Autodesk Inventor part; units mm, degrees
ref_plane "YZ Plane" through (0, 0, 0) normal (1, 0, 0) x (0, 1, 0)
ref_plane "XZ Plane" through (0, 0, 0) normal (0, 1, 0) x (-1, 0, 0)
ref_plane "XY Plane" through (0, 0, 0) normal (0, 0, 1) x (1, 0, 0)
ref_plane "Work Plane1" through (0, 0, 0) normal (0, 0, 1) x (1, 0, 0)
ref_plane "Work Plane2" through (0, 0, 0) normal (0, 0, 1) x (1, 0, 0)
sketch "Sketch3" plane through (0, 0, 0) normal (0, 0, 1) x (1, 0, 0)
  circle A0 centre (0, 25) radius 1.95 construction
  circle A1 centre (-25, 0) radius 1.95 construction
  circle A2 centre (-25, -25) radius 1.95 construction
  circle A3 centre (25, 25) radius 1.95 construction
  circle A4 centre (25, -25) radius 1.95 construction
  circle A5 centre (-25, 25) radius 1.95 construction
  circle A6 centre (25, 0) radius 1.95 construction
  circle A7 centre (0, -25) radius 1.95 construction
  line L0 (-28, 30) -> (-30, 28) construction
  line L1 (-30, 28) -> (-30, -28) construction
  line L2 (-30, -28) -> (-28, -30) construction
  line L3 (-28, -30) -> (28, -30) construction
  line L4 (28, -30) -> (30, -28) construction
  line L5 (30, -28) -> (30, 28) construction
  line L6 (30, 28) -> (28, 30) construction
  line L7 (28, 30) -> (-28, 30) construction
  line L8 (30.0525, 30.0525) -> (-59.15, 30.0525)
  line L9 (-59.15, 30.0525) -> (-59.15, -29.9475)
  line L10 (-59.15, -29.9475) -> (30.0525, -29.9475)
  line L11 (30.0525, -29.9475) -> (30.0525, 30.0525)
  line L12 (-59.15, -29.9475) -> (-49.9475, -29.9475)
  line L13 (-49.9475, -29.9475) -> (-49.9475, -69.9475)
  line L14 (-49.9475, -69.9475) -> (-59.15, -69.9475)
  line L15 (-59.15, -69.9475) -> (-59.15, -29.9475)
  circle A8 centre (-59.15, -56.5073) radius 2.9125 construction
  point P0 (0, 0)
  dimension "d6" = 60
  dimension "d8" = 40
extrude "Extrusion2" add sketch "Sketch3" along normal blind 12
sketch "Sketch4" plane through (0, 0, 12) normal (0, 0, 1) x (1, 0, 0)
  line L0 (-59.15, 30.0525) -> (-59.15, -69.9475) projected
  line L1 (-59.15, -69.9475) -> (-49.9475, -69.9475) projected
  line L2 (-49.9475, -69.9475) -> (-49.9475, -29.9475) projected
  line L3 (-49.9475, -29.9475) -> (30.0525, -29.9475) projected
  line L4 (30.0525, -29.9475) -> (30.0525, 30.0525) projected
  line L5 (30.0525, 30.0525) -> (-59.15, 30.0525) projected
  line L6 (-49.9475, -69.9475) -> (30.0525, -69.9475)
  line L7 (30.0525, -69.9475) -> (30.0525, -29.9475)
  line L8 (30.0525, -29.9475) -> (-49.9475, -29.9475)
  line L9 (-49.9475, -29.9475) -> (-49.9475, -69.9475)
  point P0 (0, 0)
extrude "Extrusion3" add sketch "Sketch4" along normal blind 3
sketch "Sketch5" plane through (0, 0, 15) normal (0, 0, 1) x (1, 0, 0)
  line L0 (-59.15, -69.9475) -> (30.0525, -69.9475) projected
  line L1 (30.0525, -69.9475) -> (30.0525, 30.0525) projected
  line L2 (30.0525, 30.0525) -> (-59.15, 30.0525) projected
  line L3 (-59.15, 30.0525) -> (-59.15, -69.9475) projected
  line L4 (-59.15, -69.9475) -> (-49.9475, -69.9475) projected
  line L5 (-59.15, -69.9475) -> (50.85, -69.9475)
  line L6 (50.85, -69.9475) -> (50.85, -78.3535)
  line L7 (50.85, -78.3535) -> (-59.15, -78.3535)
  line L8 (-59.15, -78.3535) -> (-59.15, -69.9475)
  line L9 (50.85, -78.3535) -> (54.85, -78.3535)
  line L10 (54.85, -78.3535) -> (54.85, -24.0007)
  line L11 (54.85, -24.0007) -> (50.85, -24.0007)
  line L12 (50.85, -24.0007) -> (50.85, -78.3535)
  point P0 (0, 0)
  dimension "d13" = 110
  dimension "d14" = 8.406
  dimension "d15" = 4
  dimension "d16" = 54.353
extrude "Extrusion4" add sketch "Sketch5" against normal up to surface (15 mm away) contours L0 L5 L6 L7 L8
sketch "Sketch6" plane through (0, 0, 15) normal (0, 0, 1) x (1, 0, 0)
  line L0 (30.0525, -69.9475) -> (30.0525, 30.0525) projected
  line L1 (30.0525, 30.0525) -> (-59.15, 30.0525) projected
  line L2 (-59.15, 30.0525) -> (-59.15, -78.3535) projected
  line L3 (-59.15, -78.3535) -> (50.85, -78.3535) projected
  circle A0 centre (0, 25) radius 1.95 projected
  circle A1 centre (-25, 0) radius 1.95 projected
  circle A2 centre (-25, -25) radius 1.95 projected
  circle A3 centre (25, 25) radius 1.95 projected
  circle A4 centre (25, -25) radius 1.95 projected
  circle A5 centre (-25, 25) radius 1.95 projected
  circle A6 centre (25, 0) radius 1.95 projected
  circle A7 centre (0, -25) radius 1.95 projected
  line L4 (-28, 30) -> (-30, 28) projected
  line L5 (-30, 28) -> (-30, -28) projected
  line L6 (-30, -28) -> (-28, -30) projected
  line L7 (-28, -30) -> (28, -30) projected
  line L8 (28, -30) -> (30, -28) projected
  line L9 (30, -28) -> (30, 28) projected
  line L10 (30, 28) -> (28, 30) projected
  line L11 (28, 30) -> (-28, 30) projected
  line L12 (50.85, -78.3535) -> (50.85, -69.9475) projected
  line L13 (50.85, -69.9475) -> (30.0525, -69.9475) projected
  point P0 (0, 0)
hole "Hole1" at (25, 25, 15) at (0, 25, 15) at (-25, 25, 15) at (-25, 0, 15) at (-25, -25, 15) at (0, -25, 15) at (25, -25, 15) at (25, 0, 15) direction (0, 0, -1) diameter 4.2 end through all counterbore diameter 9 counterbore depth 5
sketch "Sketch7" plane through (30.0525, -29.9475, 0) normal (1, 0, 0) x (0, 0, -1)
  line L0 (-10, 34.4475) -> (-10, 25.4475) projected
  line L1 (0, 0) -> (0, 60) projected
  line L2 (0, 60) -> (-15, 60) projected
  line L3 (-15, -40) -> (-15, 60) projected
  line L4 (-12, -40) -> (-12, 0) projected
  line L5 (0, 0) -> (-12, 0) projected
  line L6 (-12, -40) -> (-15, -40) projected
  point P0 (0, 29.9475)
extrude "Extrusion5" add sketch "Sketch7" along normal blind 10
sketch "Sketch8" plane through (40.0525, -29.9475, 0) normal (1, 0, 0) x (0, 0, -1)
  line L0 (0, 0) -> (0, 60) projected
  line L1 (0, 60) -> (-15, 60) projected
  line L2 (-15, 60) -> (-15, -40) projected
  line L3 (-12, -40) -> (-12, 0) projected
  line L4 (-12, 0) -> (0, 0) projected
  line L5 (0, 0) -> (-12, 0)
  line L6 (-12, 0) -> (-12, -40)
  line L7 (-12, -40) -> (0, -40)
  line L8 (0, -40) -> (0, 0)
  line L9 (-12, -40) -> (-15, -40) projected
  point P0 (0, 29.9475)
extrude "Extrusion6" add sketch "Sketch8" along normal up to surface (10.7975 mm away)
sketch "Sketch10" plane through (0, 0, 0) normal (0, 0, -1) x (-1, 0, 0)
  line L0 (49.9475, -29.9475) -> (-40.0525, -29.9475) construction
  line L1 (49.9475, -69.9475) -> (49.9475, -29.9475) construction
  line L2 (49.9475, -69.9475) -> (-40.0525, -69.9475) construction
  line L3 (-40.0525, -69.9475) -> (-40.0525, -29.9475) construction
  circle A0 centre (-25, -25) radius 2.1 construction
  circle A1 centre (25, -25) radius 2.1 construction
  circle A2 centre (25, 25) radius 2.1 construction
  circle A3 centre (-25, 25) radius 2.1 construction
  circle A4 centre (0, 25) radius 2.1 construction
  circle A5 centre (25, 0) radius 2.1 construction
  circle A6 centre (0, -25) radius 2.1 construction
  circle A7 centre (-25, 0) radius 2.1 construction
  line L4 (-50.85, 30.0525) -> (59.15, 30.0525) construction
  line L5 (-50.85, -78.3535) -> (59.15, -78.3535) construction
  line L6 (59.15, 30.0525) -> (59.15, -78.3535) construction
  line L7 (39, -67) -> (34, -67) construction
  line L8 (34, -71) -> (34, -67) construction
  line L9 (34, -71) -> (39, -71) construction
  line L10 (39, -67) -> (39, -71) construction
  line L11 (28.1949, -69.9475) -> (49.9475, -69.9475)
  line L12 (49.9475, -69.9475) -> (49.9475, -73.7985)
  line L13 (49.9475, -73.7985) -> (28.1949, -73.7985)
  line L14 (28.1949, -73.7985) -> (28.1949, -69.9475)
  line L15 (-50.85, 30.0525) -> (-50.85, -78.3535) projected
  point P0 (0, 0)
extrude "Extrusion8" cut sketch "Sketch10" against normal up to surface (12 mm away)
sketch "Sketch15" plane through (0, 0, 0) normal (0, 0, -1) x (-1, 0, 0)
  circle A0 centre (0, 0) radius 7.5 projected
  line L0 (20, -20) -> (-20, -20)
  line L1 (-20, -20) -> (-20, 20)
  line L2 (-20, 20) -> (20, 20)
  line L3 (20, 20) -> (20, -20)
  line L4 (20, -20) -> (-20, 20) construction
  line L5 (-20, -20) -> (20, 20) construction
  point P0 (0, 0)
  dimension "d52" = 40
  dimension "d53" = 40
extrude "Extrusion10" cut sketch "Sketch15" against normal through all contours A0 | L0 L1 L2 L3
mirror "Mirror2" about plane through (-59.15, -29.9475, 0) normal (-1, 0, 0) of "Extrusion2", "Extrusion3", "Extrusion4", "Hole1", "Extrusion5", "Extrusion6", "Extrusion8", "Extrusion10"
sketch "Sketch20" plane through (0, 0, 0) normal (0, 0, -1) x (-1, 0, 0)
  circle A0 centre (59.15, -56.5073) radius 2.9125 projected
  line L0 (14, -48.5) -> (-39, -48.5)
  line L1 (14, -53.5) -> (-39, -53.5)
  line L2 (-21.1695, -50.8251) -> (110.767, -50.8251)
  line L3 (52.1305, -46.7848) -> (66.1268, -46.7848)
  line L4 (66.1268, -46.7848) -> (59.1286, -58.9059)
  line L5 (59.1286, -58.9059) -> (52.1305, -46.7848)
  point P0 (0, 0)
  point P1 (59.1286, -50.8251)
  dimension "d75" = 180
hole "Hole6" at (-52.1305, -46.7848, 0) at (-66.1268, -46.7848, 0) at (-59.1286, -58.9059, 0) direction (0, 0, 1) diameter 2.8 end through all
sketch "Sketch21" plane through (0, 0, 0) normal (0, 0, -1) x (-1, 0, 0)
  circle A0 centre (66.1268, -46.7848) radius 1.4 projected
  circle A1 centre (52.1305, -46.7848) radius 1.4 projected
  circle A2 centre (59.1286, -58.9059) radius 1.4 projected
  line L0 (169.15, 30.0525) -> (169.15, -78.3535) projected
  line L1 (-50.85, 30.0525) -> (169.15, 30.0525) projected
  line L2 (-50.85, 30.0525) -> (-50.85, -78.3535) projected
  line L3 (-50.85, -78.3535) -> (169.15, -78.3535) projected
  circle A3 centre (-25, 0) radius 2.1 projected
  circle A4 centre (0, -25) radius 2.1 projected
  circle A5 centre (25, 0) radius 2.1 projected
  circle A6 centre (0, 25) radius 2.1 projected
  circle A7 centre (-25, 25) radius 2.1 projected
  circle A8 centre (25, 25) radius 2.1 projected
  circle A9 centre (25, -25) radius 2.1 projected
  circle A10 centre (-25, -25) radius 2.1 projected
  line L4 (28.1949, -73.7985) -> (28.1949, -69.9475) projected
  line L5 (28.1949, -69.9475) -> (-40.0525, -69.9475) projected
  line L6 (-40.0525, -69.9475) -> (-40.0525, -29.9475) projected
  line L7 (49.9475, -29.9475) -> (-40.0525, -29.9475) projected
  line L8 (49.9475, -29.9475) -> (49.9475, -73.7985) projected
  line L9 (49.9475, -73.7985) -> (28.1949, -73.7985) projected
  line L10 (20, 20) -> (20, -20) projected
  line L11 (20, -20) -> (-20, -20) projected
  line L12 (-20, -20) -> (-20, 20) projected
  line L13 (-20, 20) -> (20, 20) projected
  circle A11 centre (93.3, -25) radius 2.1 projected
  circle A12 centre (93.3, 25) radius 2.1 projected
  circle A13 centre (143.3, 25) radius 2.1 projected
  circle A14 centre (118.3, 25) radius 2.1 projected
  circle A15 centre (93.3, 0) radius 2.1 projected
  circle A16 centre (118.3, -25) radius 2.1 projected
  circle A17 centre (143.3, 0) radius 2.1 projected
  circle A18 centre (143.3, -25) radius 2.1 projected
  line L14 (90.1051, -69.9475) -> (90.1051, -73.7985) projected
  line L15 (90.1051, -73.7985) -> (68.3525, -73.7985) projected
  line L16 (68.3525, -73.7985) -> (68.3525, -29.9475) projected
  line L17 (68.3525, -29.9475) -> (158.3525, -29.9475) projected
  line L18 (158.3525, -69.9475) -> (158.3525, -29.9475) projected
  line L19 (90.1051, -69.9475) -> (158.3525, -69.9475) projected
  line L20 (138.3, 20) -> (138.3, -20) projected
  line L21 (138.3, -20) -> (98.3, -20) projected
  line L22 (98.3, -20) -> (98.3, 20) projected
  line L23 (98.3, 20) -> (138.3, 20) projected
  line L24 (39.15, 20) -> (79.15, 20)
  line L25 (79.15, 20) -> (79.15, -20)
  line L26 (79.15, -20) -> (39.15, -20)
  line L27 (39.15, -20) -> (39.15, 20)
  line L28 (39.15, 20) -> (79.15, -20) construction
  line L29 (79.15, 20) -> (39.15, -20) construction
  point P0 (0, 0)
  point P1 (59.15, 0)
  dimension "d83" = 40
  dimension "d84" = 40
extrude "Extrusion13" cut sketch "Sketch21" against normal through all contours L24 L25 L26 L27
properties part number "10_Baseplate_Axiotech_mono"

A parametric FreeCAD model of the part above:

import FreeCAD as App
import Part
import Sketcher
from FreeCAD import Vector
Q = App.Units.Quantity

doc = App.newDocument("Part")
body = doc.addObject("PartDesign::Body", "Body")

sketch1 = body.newObject("Sketcher::SketchObject", "Sketch")
sketch1.AttachmentSupport = (doc.getObject("XY_Plane"), [""])
sketch1.MapMode = "FlatFace"
sketch1.addGeometry(Part.LineSegment(Vector(30, -30, 0), Vector(30, 30, 0)), False)
sketch1.addGeometry(Part.LineSegment(Vector(30, 30, 0), Vector(-59, 30, 0)), False)
sketch1.addGeometry(Part.LineSegment(Vector(-59, 30, 0), Vector(-59, -70, 0)), False)
sketch1.addGeometry(Part.LineSegment(Vector(-59, -70, 0), Vector(-50, -70, 0)), False)
sketch1.addGeometry(Part.LineSegment(Vector(-50, -70, 0), Vector(-50, -30, 0)), False)
sketch1.addGeometry(Part.LineSegment(Vector(-50, -30, 0), Vector(30, -30, 0)), False)
sketch1.addConstraint(Sketcher.Constraint("Coincident", 0, 2, 1, 1))
sketch1.addConstraint(Sketcher.Constraint("Coincident", 1, 2, 2, 1))
sketch1.addConstraint(Sketcher.Constraint("Coincident", 2, 2, 3, 1))
sketch1.addConstraint(Sketcher.Constraint("Coincident", 3, 2, 4, 1))
sketch1.addConstraint(Sketcher.Constraint("Coincident", 4, 2, 5, 1))
sketch1.addConstraint(Sketcher.Constraint("Coincident", 5, 2, 0, 1))
sketch1.addConstraint(Sketcher.Constraint("Vertical", 0))
sketch1.addConstraint(Sketcher.Constraint("Horizontal", 1))
sketch1.addConstraint(Sketcher.Constraint("Vertical", 2))
sketch1.addConstraint(Sketcher.Constraint("Horizontal", 3))
sketch1.addConstraint(Sketcher.Constraint("Vertical", 4))
sketch1.addConstraint(Sketcher.Constraint("Horizontal", 5))
sketch1.addConstraint(Sketcher.Constraint("DistanceY", 0, 1, 0, 2, Q("60 mm")))
sketch1.addConstraint(Sketcher.Constraint("DistanceY", 4, 1, 4, 2, Q("40 mm")))
sketch1.addConstraint(Sketcher.Constraint("DistanceX", 5, 1, 5, 2, Q("80 mm")))
sketch1.addConstraint(Sketcher.Constraint("DistanceX", 1, 2, -1, 1, Q("59.15 mm")))
sketch1.addConstraint(Sketcher.Constraint("DistanceX", 1, 2, 1, 1, Q("89.2025 mm")))
sketch1.addConstraint(Sketcher.Constraint("DistanceY", -1, 1, 0, 2, Q("30.0525 mm")))
pad1 = body.newObject("PartDesign::Pad", "Pad")
pad1.Profile = sketch1
pad1.Length = 12

sketch2 = body.newObject("Sketcher::SketchObject", "Sketch001")
sketch2.AttachmentSupport = (doc.getObject("XY_Plane"), [""])
sketch2.MapMode = "FlatFace"
sketch2.AttachmentOffset = App.Placement(Vector(0, 0, 12), App.Rotation())
sketch2.addGeometry(Part.LineSegment(Vector(30, 30, 0), Vector(-59, 30, 0)), False)
sketch2.addGeometry(Part.LineSegment(Vector(-59, 30, 0), Vector(-59, -70, 0)), False)
sketch2.addGeometry(Part.LineSegment(Vector(-59, -70, 0), Vector(30, -70, 0)), False)
sketch2.addGeometry(Part.LineSegment(Vector(30, -70, 0), Vector(30, 30, 0)), False)
sketch2.addConstraint(Sketcher.Constraint("Coincident", 0, 2, 1, 1))
sketch2.addConstraint(Sketcher.Constraint("Coincident", 1, 2, 2, 1))
sketch2.addConstraint(Sketcher.Constraint("Coincident", 2, 2, 3, 1))
sketch2.addConstraint(Sketcher.Constraint("Coincident", 3, 2, 0, 1))
sketch2.addConstraint(Sketcher.Constraint("Horizontal", 0))
sketch2.addConstraint(Sketcher.Constraint("Vertical", 1))
sketch2.addConstraint(Sketcher.Constraint("Horizontal", 2))
sketch2.addConstraint(Sketcher.Constraint("Vertical", 3))
sketch2.addConstraint(Sketcher.Constraint("DistanceY", 1, 2, 1, 1, Q("100 mm")))
sketch2.addConstraint(Sketcher.Constraint("DistanceX", 0, 2, -1, 1, Q("59.15 mm")))
sketch2.addConstraint(Sketcher.Constraint("DistanceX", 0, 2, 0, 1, Q("89.2025 mm")))
sketch2.addConstraint(Sketcher.Constraint("DistanceY", -1, 1, 0, 2, Q("30.0525 mm")))
pad2 = body.newObject("PartDesign::Pad", "Pad001")
pad2.Profile = sketch2
pad2.Length = 3

sketch3 = body.newObject("Sketcher::SketchObject", "Sketch002")
sketch3.AttachmentSupport = (doc.getObject("XY_Plane"), [""])
sketch3.MapMode = "FlatFace"
sketch3.AttachmentOffset = App.Placement(Vector(0, 0, 15), App.Rotation())
sketch3.addGeometry(Part.LineSegment(Vector(51, -70, 0), Vector(-59, -70, 0)), False)
sketch3.addGeometry(Part.LineSegment(Vector(-59, -70, 0), Vector(-59, -78, 0)), False)
sketch3.addGeometry(Part.LineSegment(Vector(-59, -78, 0), Vector(51, -78, 0)), False)
sketch3.addGeometry(Part.LineSegment(Vector(51, -78, 0), Vector(51, -70, 0)), False)
sketch3.addConstraint(Sketcher.Constraint("Coincident", 0, 2, 1, 1))
sketch3.addConstraint(Sketcher.Constraint("Coincident", 1, 2, 2, 1))
sketch3.addConstraint(Sketcher.Constraint("Coincident", 2, 2, 3, 1))
sketch3.addConstraint(Sketcher.Constraint("Coincident", 3, 2, 0, 1))
sketch3.addConstraint(Sketcher.Constraint("Horizontal", 0))
sketch3.addConstraint(Sketcher.Constraint("Vertical", 1))
sketch3.addConstraint(Sketcher.Constraint("Horizontal", 2))
sketch3.addConstraint(Sketcher.Constraint("Vertical", 3))
sketch3.addConstraint(Sketcher.Constraint("DistanceX", 0, 2, 0, 1, Q("110 mm")))
sketch3.addConstraint(Sketcher.Constraint("DistanceY", 1, 2, 1, 1, Q("8.406 mm")))
sketch3.addConstraint(Sketcher.Constraint("DistanceX", 0, 2, -1, 1, Q("59.15 mm")))
sketch3.addConstraint(Sketcher.Constraint("DistanceY", 0, 2, -1, 1, Q("69.9475 mm")))
pad3 = body.newObject("PartDesign::Pad", "Pad002")
pad3.Profile = sketch3
pad3.Length = 15
pad3.Reversed = True

sketch4 = body.newObject("Sketcher::SketchObject", "Sketch003")
sketch4.AttachmentSupport = (doc.getObject("XY_Plane"), [""])
sketch4.MapMode = "FlatFace"
sketch4.AttachmentOffset = App.Placement(Vector(0, 0, 15), App.Rotation())
sketch4.addGeometry(Part.Circle(Vector(25, 25, 0), Vector(0, 0, 1), 2.1), False)
sketch4.addGeometry(Part.Circle(Vector(0, 25, 0), Vector(0, 0, 1), 2.1), False)
sketch4.addGeometry(Part.Circle(Vector(-25, 25, 0), Vector(0, 0, 1), 2.1), False)
sketch4.addGeometry(Part.Circle(Vector(-25, 0, 0), Vector(0, 0, 1), 2.1), False)
sketch4.addGeometry(Part.Circle(Vector(-25, -25, 0), Vector(0, 0, 1), 2.1), False)
sketch4.addGeometry(Part.Circle(Vector(0, -25, 0), Vector(0, 0, 1), 2.1), False)
sketch4.addGeometry(Part.Circle(Vector(25, -25, 0), Vector(0, 0, 1), 2.1), False)
sketch4.addGeometry(Part.Circle(Vector(25, 0, 0), Vector(0, 0, 1), 2.1), False)
sketch4.addConstraint(Sketcher.Constraint("Equal", 0, 1))
sketch4.addConstraint(Sketcher.Constraint("Equal", 1, 2))
sketch4.addConstraint(Sketcher.Constraint("Equal", 2, 3))
sketch4.addConstraint(Sketcher.Constraint("Equal", 3, 4))
sketch4.addConstraint(Sketcher.Constraint("Equal", 4, 5))
sketch4.addConstraint(Sketcher.Constraint("Equal", 5, 6))
sketch4.addConstraint(Sketcher.Constraint("Equal", 6, 7))
sketch4.addConstraint(Sketcher.Constraint("Symmetric", 0, 3, 4, 3, -1, 1))
sketch4.addConstraint(Sketcher.Constraint("Symmetric", 1, 3, 5, 3, -1, 1))
sketch4.addConstraint(Sketcher.Constraint("Symmetric", 2, 3, 6, 3, -1, 1))
sketch4.addConstraint(Sketcher.Constraint("Symmetric", 3, 3, 7, 3, -1, 1))
sketch4.addConstraint(Sketcher.Constraint("Symmetric", 0, 3, 2, 3, -2))
sketch4.addConstraint(Sketcher.Constraint("PointOnObject", 1, 3, -2))
sketch4.addConstraint(Sketcher.Constraint("PointOnObject", 3, 3, -1))
sketch4.addConstraint(Sketcher.Constraint("Horizontal", 0, 3, 1, 3))
sketch4.addConstraint(Sketcher.Constraint("Vertical", 2, 3, 3, 3))
sketch4.addConstraint(Sketcher.Constraint("Diameter", 0, Q("4.2 mm")))
sketch4.addConstraint(Sketcher.Constraint("DistanceX", -1, 1, 0, 3, Q("25 mm")))
sketch4.addConstraint(Sketcher.Constraint("DistanceY", -1, 1, 0, 3, Q("25 mm")))
doc.recompute()
hole = body.newObject("PartDesign::Hole", "Hole")
hole.Profile = sketch4
hole.ThreadType = "None"
hole.Diameter = 4.2
hole.DepthType = "ThroughAll"
hole.HoleCutType = "Counterbore"
hole.HoleCutDiameter = 9
hole.HoleCutDepth = 5

sketch5 = body.newObject("Sketcher::SketchObject", "Sketch004")
sketch5.AttachmentSupport = (doc.getObject("YZ_Plane"), [""])
sketch5.MapMode = "FlatFace"
sketch5.AttachmentOffset = App.Placement(Vector(0, 0, 30.0525), App.Rotation())
sketch5.addGeometry(Part.LineSegment(Vector(-29.9, 12, 0), Vector(-29.9, 0, 0)), False)
sketch5.addGeometry(Part.LineSegment(Vector(-29.9, 0, 0), Vector(30.1, 0, 0)), False)
sketch5.addGeometry(Part.LineSegment(Vector(30.1, 0, 0), Vector(30.1, 15, 0)), False)
sketch5.addGeometry(Part.LineSegment(Vector(30.1, 15, 0), Vector(-69.9, 15, 0)), False)
sketch5.addGeometry(Part.LineSegment(Vector(-69.9, 15, 0), Vector(-69.9, 12, 0)), False)
sketch5.addGeometry(Part.LineSegment(Vector(-69.9, 12, 0), Vector(-29.9, 12, 0)), False)
sketch5.addConstraint(Sketcher.Constraint("Coincident", 0, 2, 1, 1))
sketch5.addConstraint(Sketcher.Constraint("Coincident", 1, 2, 2, 1))
sketch5.addConstraint(Sketcher.Constraint("Coincident", 2, 2, 3, 1))
sketch5.addConstraint(Sketcher.Constraint("Coincident", 3, 2, 4, 1))
sketch5.addConstraint(Sketcher.Constraint("Coincident", 4, 2, 5, 1))
sketch5.addConstraint(Sketcher.Constraint("Coincident", 5, 2, 0, 1))
sketch5.addConstraint(Sketcher.Constraint("Vertical", 0))
sketch5.addConstraint(Sketcher.Constraint("Horizontal", 1))
sketch5.addConstraint(Sketcher.Constraint("Vertical", 2))
sketch5.addConstraint(Sketcher.Constraint("Horizontal", 3))
sketch5.addConstraint(Sketcher.Constraint("Vertical", 4))
sketch5.addConstraint(Sketcher.Constraint("Horizontal", 5))
sketch5.addConstraint(Sketcher.Constraint("PointOnObject", 0, 2, -1))
sketch5.addConstraint(Sketcher.Constraint("DistanceX", 1, 1, 1, 2, Q("60 mm")))
sketch5.addConstraint(Sketcher.Constraint("DistanceX", 3, 2, 3, 1, Q("100 mm")))
sketch5.addConstraint(Sketcher.Constraint("DistanceY", 0, 2, 0, 1, Q("12 mm")))
sketch5.addConstraint(Sketcher.Constraint("DistanceY", 2, 1, 2, 2, Q("15 mm")))
sketch5.addConstraint(Sketcher.Constraint("DistanceX", 0, 2, -1, 1, Q("29.9475 mm")))
pad4 = body.newObject("PartDesign::Pad", "Pad003")
pad4.Profile = sketch5
pad4.Length = 10

sketch6 = body.newObject("Sketcher::SketchObject", "Sketch005")
sketch6.AttachmentSupport = (doc.getObject("YZ_Plane"), [""])
sketch6.MapMode = "FlatFace"
sketch6.AttachmentOffset = App.Placement(Vector(0, 0, 40.0525), App.Rotation())
sketch6.addGeometry(Part.LineSegment(Vector(-70, 15, 0), Vector(-70, 0, 0)), False)
sketch6.addGeometry(Part.LineSegment(Vector(-70, 0, 0), Vector(30, 0, 0)), False)
sketch6.addGeometry(Part.LineSegment(Vector(30, 0, 0), Vector(30, 15, 0)), False)
sketch6.addGeometry(Part.LineSegment(Vector(30, 15, 0), Vector(-70, 15, 0)), False)
sketch6.addConstraint(Sketcher.Constraint("Coincident", 0, 2, 1, 1))
sketch6.addConstraint(Sketcher.Constraint("Coincident", 1, 2, 2, 1))
sketch6.addConstraint(Sketcher.Constraint("Coincident", 2, 2, 3, 1))
sketch6.addConstraint(Sketcher.Constraint("Coincident", 3, 2, 0, 1))
sketch6.addConstraint(Sketcher.Constraint("Vertical", 0))
sketch6.addConstraint(Sketcher.Constraint("Horizontal", 1))
sketch6.addConstraint(Sketcher.Constraint("Vertical", 2))
sketch6.addConstraint(Sketcher.Constraint("Horizontal", 3))
sketch6.addConstraint(Sketcher.Constraint("PointOnObject", 0, 2, -1))
sketch6.addConstraint(Sketcher.Constraint("DistanceX", 1, 1, 1, 2, Q("100 mm")))
sketch6.addConstraint(Sketcher.Constraint("DistanceY", 0, 2, 0, 1, Q("15 mm")))
sketch6.addConstraint(Sketcher.Constraint("DistanceX", 0, 2, -1, 1, Q("69.9475 mm")))
pad5 = body.newObject("PartDesign::Pad", "Pad004")
pad5.Profile = sketch6
pad5.Length = 10.7975

sketch7 = body.newObject("Sketcher::SketchObject", "Sketch006")
sketch7.AttachmentSupport = (doc.getObject("XY_Plane"), [""])
sketch7.MapMode = "FlatFace"
sketch7.addGeometry(Part.LineSegment(Vector(-49.9, -69.9, 0), Vector(-28.2, -69.9, 0)), False)
sketch7.addGeometry(Part.LineSegment(Vector(-28.2, -69.9, 0), Vector(-28.2, -73.8, 0)), False)
sketch7.addGeometry(Part.LineSegment(Vector(-28.2, -73.8, 0), Vector(-49.9, -73.8, 0)), False)
sketch7.addGeometry(Part.LineSegment(Vector(-49.9, -73.8, 0), Vector(-49.9, -69.9, 0)), False)
sketch7.addConstraint(Sketcher.Constraint("Coincident", 0, 2, 1, 1))
sketch7.addConstraint(Sketcher.Constraint("Coincident", 1, 2, 2, 1))
sketch7.addConstraint(Sketcher.Constraint("Coincident", 2, 2, 3, 1))
sketch7.addConstraint(Sketcher.Constraint("Coincident", 3, 2, 0, 1))
sketch7.addConstraint(Sketcher.Constraint("Horizontal", 0))
sketch7.addConstraint(Sketcher.Constraint("Vertical", 1))
sketch7.addConstraint(Sketcher.Constraint("Horizontal", 2))
sketch7.addConstraint(Sketcher.Constraint("Vertical", 3))
sketch7.addConstraint(Sketcher.Constraint("DistanceY", 1, 2, 1, 1, Q("3.851 mm")))
sketch7.addConstraint(Sketcher.Constraint("DistanceX", 0, 1, 0, 2, Q("21.7526 mm")))
sketch7.addConstraint(Sketcher.Constraint("DistanceX", 0, 2, -1, 1, Q("28.195 mm")))
sketch7.addConstraint(Sketcher.Constraint("DistanceY", 0, 2, -1, 1, Q("69.9475 mm")))
pocket1 = body.newObject("PartDesign::Pocket", "Pocket")
pocket1.Profile = sketch7
pocket1.Length = 12
pocket1.Reversed = True

sketch8 = body.newObject("Sketcher::SketchObject", "Sketch007")
sketch8.AttachmentSupport = (doc.getObject("XY_Plane"), [""])
sketch8.MapMode = "FlatFace"
sketch8.addGeometry(Part.LineSegment(Vector(20, -20, 0), Vector(-20, -20, 0)), False)
sketch8.addGeometry(Part.LineSegment(Vector(-20, -20, 0), Vector(-20, 20, 0)), False)
sketch8.addGeometry(Part.LineSegment(Vector(-20, 20, 0), Vector(20, 20, 0)), False)
sketch8.addGeometry(Part.LineSegment(Vector(20, 20, 0), Vector(20, -20, 0)), False)
sketch8.addConstraint(Sketcher.Constraint("Coincident", 0, 2, 1, 1))
sketch8.addConstraint(Sketcher.Constraint("Coincident", 1, 2, 2, 1))
sketch8.addConstraint(Sketcher.Constraint("Coincident", 2, 2, 3, 1))
sketch8.addConstraint(Sketcher.Constraint("Coincident", 3, 2, 0, 1))
sketch8.addConstraint(Sketcher.Constraint("Horizontal", 0))
sketch8.addConstraint(Sketcher.Constraint("Vertical", 1))
sketch8.addConstraint(Sketcher.Constraint("Horizontal", 2))
sketch8.addConstraint(Sketcher.Constraint("Vertical", 3))
sketch8.addConstraint(Sketcher.Constraint("Symmetric", 0, 2, 2, 2, -1, 1))
sketch8.addConstraint(Sketcher.Constraint("Equal", 2, 1))
sketch8.addConstraint(Sketcher.Constraint("DistanceX", 0, 2, 0, 1, Q("40 mm")))
pocket2 = body.newObject("PartDesign::Pocket", "Pocket001")
pocket2.Profile = sketch8
pocket2.Type = "ThroughAll"
pocket2.Reversed = True
doc.recompute()

datumplane = body.newObject("PartDesign::Plane", "DatumPlane")
datumplane.AttachmentSupport = (doc.getObject("YZ_Plane"), [""])
datumplane.MapMode = "FlatFace"
datumplane.AttachmentOffset = App.Placement(Vector(0, 0, -59.15), App.Rotation())
mirrored = body.newObject("PartDesign::Mirrored", "Mirrored")
mirrored.Originals = [pad1, pad2, pad3, hole, pad4, pad5, pocket1, pocket2]
mirrored.MirrorPlane = (datumplane, [""])
body.Tip = mirrored

sketch9 = body.newObject("Sketcher::SketchObject", "Sketch008")
sketch9.AttachmentSupport = (doc.getObject("XY_Plane"), [""])
sketch9.MapMode = "FlatFace"
sketch9.addGeometry(Part.Circle(Vector(-52.1, -46.8, 0), Vector(0, 0, 1), 1.4), False)
sketch9.addGeometry(Part.Circle(Vector(-66.1, -46.8, 0), Vector(0, 0, 1), 1.4), False)
sketch9.addGeometry(Part.Circle(Vector(-59.1, -58.9, 0), Vector(0, 0, 1), 1.4), False)
sketch9.addConstraint(Sketcher.Constraint("Equal", 0, 1))
sketch9.addConstraint(Sketcher.Constraint("Equal", 1, 2))
sketch9.addConstraint(Sketcher.Constraint("Horizontal", 0, 3, 1, 3))
sketch9.addConstraint(Sketcher.Constraint("Diameter", 0, Q("2.8 mm")))
sketch9.addConstraint(Sketcher.Constraint("DistanceY", 2, 3, -1, 1, Q("58.906 mm")))
sketch9.addConstraint(Sketcher.Constraint("DistanceX", 2, 3, 0, 3, Q("6.998 mm")))
sketch9.addConstraint(Sketcher.Constraint("DistanceY", 2, 3, 0, 3, Q("12.121 mm")))
sketch9.addConstraint(Sketcher.Constraint("DistanceX", 0, 3, -1, 1, Q("52.1305 mm")))
sketch9.addConstraint(Sketcher.Constraint("DistanceX", 1, 3, -1, 1, Q("66.1268 mm")))
doc.recompute()
hole2 = body.newObject("PartDesign::Hole", "Hole001")
hole2.Profile = sketch9
hole2.ThreadType = "None"
hole2.Diameter = 2.8
hole2.DepthType = "ThroughAll"
hole2.Reversed = True

sketch10 = body.newObject("Sketcher::SketchObject", "Sketch009")
sketch10.AttachmentSupport = (doc.getObject("XY_Plane"), [""])
sketch10.MapMode = "FlatFace"
sketch10.addGeometry(Part.LineSegment(Vector(-79, 20, 0), Vector(-39, 20, 0)), False)
sketch10.addGeometry(Part.LineSegment(Vector(-39, 20, 0), Vector(-39, -20, 0)), False)
sketch10.addGeometry(Part.LineSegment(Vector(-39, -20, 0), Vector(-79, -20, 0)), False)
sketch10.addGeometry(Part.LineSegment(Vector(-79, -20, 0), Vector(-79, 20, 0)), False)
sketch10.addConstraint(Sketcher.Constraint("Coincident", 0, 2, 1, 1))
sketch10.addConstraint(Sketcher.Constraint("Coincident", 1, 2, 2, 1))
sketch10.addConstraint(Sketcher.Constraint("Coincident", 2, 2, 3, 1))
sketch10.addConstraint(Sketcher.Constraint("Coincident", 3, 2, 0, 1))
sketch10.addConstraint(Sketcher.Constraint("Horizontal", 0))
sketch10.addConstraint(Sketcher.Constraint("Vertical", 1))
sketch10.addConstraint(Sketcher.Constraint("Horizontal", 2))
sketch10.addConstraint(Sketcher.Constraint("Vertical", 3))
sketch10.addConstraint(Sketcher.Constraint("Equal", 2, 1))
sketch10.addConstraint(Sketcher.Constraint("DistanceX", 0, 1, 0, 2, Q("40 mm")))
sketch10.addConstraint(Sketcher.Constraint("DistanceY", -1, 1, 0, 2, Q("20 mm")))
sketch10.addConstraint(Sketcher.Constraint("DistanceX", 0, 2, -1, 1, Q("39.15 mm")))
pocket3 = body.newObject("PartDesign::Pocket", "Pocket002")
pocket3.Profile = sketch10
pocket3.Type = "ThroughAll"
pocket3.Reversed = True

doc.recompute()
